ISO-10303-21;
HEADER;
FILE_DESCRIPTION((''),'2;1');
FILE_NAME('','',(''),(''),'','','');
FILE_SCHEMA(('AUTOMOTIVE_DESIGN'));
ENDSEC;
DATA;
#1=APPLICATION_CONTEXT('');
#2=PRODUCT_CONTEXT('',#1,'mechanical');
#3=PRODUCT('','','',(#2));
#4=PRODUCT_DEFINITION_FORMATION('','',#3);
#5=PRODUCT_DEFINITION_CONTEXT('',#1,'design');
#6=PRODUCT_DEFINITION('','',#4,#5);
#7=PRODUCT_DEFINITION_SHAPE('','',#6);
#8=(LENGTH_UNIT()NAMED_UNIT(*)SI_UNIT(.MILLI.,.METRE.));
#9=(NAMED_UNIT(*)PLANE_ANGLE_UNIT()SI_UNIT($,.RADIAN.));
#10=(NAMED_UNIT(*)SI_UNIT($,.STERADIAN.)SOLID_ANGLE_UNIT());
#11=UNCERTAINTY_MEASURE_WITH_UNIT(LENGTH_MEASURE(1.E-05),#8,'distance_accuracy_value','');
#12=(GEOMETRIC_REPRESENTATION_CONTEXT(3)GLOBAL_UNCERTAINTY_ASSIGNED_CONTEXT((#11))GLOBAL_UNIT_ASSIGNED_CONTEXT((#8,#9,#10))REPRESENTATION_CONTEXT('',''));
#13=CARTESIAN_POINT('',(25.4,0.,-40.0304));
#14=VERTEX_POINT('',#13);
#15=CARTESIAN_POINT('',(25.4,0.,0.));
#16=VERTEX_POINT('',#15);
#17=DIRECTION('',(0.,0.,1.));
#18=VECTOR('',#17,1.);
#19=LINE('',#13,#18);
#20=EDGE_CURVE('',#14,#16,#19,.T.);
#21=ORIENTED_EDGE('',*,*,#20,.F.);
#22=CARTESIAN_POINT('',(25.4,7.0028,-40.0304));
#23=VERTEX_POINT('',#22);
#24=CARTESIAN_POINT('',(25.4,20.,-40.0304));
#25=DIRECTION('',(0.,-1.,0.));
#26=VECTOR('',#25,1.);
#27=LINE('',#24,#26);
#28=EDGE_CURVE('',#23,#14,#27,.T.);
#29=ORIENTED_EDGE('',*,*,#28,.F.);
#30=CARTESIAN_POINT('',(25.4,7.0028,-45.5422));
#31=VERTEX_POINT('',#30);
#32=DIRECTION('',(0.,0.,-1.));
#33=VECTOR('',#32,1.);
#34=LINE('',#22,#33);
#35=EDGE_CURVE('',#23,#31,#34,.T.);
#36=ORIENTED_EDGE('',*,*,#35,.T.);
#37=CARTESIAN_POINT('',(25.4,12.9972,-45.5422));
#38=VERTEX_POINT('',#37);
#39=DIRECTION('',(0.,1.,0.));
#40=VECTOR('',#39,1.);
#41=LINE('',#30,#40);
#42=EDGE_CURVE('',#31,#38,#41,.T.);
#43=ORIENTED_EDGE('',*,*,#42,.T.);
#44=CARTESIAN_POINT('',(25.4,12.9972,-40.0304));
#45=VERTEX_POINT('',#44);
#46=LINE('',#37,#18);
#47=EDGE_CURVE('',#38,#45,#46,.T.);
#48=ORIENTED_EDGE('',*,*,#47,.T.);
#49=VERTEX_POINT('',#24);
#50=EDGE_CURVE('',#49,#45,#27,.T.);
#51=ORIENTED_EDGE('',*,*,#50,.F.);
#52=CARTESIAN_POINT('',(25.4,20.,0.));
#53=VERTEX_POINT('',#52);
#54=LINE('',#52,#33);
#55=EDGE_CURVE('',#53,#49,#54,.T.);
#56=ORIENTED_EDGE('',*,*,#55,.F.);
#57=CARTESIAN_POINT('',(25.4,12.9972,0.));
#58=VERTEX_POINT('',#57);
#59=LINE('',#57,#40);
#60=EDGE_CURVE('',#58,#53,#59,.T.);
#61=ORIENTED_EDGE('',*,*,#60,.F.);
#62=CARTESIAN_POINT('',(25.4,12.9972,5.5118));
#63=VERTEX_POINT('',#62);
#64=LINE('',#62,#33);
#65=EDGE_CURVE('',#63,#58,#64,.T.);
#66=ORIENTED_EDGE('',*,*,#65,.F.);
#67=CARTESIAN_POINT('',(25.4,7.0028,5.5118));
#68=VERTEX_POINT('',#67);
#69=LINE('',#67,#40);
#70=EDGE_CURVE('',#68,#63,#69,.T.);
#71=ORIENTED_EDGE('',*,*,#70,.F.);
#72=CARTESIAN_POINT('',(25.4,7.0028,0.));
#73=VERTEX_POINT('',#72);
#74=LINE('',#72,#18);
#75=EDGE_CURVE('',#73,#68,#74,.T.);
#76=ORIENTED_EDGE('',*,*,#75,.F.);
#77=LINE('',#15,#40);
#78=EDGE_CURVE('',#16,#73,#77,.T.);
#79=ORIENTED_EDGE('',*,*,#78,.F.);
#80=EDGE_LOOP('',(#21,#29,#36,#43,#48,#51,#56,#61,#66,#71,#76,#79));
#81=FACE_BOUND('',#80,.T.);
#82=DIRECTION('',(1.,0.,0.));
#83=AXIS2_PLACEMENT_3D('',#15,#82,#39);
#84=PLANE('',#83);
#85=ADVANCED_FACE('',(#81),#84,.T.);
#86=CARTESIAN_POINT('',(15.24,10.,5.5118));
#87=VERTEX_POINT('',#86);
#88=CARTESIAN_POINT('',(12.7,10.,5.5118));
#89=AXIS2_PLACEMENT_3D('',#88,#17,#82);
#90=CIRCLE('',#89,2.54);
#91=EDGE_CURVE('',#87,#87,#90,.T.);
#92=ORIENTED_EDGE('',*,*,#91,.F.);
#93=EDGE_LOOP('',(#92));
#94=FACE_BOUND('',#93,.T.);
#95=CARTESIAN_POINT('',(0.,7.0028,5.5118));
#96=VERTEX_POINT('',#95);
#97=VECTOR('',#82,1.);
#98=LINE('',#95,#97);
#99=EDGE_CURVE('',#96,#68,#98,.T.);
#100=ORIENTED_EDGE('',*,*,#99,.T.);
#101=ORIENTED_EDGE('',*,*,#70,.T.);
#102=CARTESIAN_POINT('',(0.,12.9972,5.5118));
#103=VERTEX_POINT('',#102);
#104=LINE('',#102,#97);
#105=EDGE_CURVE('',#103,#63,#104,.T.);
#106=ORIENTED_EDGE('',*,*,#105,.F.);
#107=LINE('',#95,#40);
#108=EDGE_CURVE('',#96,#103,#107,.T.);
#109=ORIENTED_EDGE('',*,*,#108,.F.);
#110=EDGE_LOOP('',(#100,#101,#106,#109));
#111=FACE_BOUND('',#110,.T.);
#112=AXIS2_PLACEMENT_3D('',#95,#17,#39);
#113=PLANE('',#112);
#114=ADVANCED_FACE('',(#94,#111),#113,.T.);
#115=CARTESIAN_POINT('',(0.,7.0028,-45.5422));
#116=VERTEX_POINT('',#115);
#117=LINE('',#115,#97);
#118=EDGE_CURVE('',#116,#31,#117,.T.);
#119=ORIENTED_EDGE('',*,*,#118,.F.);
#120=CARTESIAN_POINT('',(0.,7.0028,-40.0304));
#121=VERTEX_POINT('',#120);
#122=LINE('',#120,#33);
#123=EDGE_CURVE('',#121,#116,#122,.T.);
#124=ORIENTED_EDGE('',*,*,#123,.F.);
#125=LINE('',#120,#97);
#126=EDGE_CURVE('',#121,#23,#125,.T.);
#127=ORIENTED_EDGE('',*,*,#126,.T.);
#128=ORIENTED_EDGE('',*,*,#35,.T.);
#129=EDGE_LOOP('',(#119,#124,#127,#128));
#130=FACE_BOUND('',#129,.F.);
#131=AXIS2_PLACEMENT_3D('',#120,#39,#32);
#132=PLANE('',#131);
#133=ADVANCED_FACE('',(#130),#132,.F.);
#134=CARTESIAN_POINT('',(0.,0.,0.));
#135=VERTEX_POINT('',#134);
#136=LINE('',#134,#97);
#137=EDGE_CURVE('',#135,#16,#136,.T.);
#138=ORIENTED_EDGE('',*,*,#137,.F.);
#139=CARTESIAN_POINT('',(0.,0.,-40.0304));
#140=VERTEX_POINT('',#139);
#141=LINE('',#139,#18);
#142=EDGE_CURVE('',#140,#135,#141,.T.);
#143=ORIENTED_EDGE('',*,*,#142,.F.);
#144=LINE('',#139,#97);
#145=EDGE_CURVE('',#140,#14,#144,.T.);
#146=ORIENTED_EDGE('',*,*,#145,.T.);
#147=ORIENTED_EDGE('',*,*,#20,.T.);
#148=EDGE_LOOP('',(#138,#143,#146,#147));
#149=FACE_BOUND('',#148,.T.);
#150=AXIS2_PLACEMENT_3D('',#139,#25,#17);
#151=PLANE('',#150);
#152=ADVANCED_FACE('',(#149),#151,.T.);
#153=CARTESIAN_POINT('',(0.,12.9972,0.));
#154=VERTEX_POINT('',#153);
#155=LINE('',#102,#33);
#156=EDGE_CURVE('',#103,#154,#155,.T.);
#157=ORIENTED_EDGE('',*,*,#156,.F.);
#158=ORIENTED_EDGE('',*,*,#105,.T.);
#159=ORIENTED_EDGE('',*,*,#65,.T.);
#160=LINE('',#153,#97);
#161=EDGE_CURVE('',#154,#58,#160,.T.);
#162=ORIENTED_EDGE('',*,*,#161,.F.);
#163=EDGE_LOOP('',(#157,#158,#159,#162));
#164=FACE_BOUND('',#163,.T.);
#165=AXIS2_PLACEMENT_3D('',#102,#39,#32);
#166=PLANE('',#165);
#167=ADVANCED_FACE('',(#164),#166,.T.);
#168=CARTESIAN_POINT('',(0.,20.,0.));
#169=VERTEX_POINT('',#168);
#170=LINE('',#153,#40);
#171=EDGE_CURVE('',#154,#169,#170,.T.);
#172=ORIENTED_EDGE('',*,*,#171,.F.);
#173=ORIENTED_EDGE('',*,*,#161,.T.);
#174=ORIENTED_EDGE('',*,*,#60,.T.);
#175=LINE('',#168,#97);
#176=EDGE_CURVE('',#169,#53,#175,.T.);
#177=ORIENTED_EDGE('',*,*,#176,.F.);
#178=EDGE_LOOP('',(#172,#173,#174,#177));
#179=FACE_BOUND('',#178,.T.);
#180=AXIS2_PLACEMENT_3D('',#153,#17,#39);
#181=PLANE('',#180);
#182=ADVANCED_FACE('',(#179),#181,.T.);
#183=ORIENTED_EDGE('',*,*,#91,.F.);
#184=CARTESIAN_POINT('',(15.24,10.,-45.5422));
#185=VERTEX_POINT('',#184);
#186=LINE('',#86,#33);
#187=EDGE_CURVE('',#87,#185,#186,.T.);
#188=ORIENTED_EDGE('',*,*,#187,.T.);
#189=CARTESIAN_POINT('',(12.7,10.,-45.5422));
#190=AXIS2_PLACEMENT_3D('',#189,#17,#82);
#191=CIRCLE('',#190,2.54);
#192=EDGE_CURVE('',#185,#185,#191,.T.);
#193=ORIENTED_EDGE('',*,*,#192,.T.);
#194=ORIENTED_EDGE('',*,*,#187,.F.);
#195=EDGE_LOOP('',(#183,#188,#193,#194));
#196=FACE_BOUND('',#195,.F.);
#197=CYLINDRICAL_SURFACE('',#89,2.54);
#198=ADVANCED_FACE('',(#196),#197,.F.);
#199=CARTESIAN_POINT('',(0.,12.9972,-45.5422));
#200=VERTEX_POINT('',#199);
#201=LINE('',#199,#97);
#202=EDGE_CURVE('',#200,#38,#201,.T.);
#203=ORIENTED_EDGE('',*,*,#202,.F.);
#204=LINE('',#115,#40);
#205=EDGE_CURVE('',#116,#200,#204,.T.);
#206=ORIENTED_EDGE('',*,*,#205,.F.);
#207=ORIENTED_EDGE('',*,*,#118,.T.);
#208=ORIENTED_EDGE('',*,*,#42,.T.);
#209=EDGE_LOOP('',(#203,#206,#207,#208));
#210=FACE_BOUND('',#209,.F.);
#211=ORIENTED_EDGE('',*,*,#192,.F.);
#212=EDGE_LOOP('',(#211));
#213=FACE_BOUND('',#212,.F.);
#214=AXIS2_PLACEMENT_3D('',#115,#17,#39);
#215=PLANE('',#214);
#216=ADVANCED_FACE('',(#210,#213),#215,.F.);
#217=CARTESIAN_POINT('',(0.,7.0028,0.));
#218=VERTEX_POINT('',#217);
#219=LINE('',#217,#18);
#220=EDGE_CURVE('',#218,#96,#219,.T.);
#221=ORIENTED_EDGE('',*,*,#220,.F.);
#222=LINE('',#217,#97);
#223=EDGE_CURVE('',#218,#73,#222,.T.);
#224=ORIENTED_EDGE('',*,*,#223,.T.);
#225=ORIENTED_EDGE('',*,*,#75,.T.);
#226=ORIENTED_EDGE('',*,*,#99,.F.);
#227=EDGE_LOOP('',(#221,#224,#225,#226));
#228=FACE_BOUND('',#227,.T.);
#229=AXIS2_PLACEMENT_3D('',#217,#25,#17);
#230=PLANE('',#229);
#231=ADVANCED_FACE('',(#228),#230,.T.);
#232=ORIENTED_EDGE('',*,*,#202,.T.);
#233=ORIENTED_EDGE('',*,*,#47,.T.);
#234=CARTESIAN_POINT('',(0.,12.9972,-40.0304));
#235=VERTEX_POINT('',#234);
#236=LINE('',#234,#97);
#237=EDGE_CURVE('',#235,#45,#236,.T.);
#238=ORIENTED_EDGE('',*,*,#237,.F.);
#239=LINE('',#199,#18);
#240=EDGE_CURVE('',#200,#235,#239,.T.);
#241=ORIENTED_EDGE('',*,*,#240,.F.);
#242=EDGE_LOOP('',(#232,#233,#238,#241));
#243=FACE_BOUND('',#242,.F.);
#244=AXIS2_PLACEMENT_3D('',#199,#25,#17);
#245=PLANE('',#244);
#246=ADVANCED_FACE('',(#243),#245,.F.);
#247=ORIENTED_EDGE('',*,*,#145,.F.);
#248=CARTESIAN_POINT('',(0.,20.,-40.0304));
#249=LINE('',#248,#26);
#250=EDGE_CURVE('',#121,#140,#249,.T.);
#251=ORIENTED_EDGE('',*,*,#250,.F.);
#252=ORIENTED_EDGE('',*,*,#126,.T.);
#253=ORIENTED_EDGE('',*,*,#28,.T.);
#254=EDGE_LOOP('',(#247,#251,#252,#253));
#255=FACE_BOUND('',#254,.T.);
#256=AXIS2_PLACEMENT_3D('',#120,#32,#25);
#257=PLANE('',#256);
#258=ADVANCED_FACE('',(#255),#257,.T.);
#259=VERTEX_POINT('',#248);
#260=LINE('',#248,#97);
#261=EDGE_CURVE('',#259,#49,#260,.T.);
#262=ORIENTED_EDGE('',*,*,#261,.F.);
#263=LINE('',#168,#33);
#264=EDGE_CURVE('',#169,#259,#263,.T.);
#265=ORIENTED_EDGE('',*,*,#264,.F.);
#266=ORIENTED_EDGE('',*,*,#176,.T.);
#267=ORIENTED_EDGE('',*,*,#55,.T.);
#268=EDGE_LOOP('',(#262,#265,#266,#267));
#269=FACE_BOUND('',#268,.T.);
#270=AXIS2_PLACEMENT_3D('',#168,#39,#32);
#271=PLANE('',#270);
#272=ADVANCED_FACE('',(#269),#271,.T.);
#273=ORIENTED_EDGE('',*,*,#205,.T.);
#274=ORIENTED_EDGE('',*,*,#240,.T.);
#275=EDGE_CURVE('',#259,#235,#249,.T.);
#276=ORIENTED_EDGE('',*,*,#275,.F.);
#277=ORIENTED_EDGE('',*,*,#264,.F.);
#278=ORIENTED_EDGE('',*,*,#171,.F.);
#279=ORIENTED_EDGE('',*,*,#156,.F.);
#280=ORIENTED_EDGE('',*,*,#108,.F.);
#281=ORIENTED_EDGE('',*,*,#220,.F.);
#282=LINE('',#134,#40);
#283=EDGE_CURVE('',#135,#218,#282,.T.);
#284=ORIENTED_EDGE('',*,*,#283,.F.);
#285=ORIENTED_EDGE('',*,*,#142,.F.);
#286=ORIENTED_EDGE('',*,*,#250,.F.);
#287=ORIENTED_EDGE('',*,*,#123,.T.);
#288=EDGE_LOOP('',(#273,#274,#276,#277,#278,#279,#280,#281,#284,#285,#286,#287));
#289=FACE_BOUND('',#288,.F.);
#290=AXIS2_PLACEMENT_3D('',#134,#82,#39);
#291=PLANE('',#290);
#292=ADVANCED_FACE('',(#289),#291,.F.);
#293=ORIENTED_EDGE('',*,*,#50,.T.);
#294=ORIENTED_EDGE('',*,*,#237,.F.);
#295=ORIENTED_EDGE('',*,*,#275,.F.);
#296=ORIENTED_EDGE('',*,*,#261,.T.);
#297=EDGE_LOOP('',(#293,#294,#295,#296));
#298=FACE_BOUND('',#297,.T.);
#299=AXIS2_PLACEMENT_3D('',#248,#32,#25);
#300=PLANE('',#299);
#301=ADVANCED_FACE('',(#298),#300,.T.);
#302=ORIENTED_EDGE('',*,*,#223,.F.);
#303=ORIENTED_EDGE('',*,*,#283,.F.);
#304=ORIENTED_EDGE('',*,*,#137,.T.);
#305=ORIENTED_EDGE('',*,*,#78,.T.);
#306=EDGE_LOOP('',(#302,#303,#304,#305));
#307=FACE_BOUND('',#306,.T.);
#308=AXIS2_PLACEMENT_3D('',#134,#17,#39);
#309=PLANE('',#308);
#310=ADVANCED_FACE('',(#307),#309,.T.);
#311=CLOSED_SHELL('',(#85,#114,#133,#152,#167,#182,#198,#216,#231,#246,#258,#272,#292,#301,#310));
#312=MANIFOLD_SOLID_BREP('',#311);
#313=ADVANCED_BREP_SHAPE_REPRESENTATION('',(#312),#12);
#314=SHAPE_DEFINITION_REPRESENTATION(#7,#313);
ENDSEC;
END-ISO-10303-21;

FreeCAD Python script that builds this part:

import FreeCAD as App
import Part
import Sketcher
from FreeCAD import Vector
Q = App.Units.Quantity

doc = App.newDocument("Part")
params = doc.addObject("Spreadsheet::Sheet", "Params")
for row, (alias, value) in enumerate([
    ("sketch1_width", "0.236 in"),
    ("sketch1_height", "1.576 in"),
    ("sketch1_height2", "0.217 in"),
    ("pad1_length", "1 in"),
    ("sketch2_diameter", "0.2 in"),
    ("pocket1_length", "5 in"),
], start=1):
    params.set(f"A{row}", alias)
    params.set(f"B{row}", "=" + value)
    params.setAlias(f"B{row}", alias)

body = doc.addObject("PartDesign::Body", "Body")

# Sketch on YZ plane
sketch1 = body.newObject("Sketcher::SketchObject", "Sketch")
sketch1.AttachmentSupport = (doc.getObject("YZ_Plane"), [""])
sketch1.MapMode = "FlatFace"
sketch1.addGeometry([
    Part.LineSegment(Vector(20, -40, 0), Vector(20, 0, 0)),  # 0
    Part.LineSegment(Vector(20, 0, 0), Vector(13, 0, 0)),  # 1
    Part.LineSegment(Vector(13, 0, 0), Vector(13, 6, 0)),  # 2
    Part.LineSegment(Vector(13, 6, 0), Vector(7, 6, 0)),  # 3
    Part.LineSegment(Vector(7, 6, 0), Vector(7, 0, 0)),  # 4
    Part.LineSegment(Vector(7, 0, 0), Vector(0, 0, 0)),  # 5
    Part.LineSegment(Vector(0, 0, 0), Vector(0, -40, 0)),  # 6
    Part.LineSegment(Vector(0, -40, 0), Vector(7, -40, 0)),  # 7
    Part.LineSegment(Vector(7, -40, 0), Vector(7, -46, 0)),  # 8
    Part.LineSegment(Vector(7, -46, 0), Vector(13, -46, 0)),  # 9
    Part.LineSegment(Vector(13, -46, 0), Vector(13, -40, 0)),  # 10
    Part.LineSegment(Vector(13, -40, 0), Vector(20, -40, 0)),  # 11
], False)
sketch1.addConstraint([
    Sketcher.Constraint("Coincident", 0, 2, 1, 1),
    Sketcher.Constraint("Coincident", 1, 2, 2, 1),
    Sketcher.Constraint("Coincident", 2, 2, 3, 1),
    Sketcher.Constraint("Coincident", 3, 2, 4, 1),
    Sketcher.Constraint("Coincident", 4, 2, 5, 1),
    Sketcher.Constraint("Coincident", 5, 2, 6, 1),
    Sketcher.Constraint("Coincident", 6, 2, 7, 1),
    Sketcher.Constraint("Coincident", 7, 2, 8, 1),
    Sketcher.Constraint("Coincident", 8, 2, 9, 1),
    Sketcher.Constraint("Coincident", 9, 2, 10, 1),
    Sketcher.Constraint("Coincident", 10, 2, 11, 1),
    Sketcher.Constraint("Coincident", 11, 2, 0, 1),
    Sketcher.Constraint("Vertical", 0),
    Sketcher.Constraint("Horizontal", 1),
    Sketcher.Constraint("Vertical", 2),
    Sketcher.Constraint("Horizontal", 3),
    Sketcher.Constraint("Vertical", 4),
    Sketcher.Constraint("Horizontal", 5),
    Sketcher.Constraint("Vertical", 6),
    Sketcher.Constraint("Horizontal", 7),
    Sketcher.Constraint("Vertical", 8),
    Sketcher.Constraint("Horizontal", 9),
    Sketcher.Constraint("Vertical", 10),
    Sketcher.Constraint("Horizontal", 11),
    Sketcher.Constraint("Coincident", 5, 2, -1, 1),
    Sketcher.Constraint("PointOnObject", 0, 2, -1),
    Sketcher.Constraint("Horizontal", 7, 2, 10, 2),
    Sketcher.Constraint("Vertical", 4, 2, 7, 2),
    Sketcher.Constraint("Vertical", 2, 2, 9, 2),
    Sketcher.Constraint("Equal", 1, 5),
    Sketcher.Constraint("Equal", 4, 8),
    Sketcher.Constraint("DistanceX", 3, 2, 3, 1, Q("0.236 in")),
    Sketcher.Constraint("DistanceY", 0, 1, 0, 2, Q("1.576 in")),
    Sketcher.Constraint("DistanceY", 2, 1, 2, 2, Q("0.217 in")),
    Sketcher.Constraint("DistanceX", 1, 2, 1, 1, Q("0.2757 in")),
])
sketch1.setExpression("Constraints[31]", "Params.sketch1_width")
sketch1.setExpression("Constraints[32]", "Params.sketch1_height")
sketch1.setExpression("Constraints[33]", "Params.sketch1_height2")
pad1 = body.newObject("PartDesign::Pad", "Pad")
pad1.Profile = sketch1
pad1.setExpression("Length", "Params.pad1_length")

# Sketch on XY plane
sketch2 = body.newObject("Sketcher::SketchObject", "Sketch001")
sketch2.AttachmentSupport = (doc.getObject("XY_Plane"), [""])
sketch2.MapMode = "FlatFace"
sketch2.AttachmentOffset = App.Placement(Vector(0, 0, 0.217 * 25.4), App.Rotation())
sketch2.addGeometry(Part.Circle(Vector(12.7, 10, 0), Vector(0, 0, 1), 2.5), False)
sketch2.addConstraint([
    Sketcher.Constraint("Diameter", 0, Q("0.2 in")),
    Sketcher.Constraint("DistanceX", -1, 1, 0, 3, Q("0.5 in")),
    Sketcher.Constraint("DistanceY", -1, 1, 0, 3, Q("0.3937 in")),
])
sketch2.setExpression("Constraints[0]", "Params.sketch2_diameter")
pocket1 = body.newObject("PartDesign::Pocket", "Pocket")
pocket1.Profile = sketch2
pocket1.setExpression("Length", "Params.pocket1_length")

doc.recompute()
